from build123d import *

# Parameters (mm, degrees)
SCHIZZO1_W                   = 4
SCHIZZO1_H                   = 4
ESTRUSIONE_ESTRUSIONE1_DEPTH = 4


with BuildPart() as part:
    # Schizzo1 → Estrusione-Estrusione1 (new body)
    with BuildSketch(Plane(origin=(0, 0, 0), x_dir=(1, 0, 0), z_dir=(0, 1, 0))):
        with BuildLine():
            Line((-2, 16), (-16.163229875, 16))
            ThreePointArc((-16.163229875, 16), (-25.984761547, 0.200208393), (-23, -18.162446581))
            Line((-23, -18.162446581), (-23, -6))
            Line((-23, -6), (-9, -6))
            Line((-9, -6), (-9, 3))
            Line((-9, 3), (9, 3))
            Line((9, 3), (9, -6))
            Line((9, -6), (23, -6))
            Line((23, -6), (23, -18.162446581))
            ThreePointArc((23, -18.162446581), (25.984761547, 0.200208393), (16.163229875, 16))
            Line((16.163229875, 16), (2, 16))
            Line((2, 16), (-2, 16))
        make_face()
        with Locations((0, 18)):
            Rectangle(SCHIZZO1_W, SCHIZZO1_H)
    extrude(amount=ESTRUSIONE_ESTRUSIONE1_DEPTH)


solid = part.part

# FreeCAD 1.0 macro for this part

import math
import FreeCAD as App
import Part
import Sketcher

V = App.Vector

doc = App.newDocument("Part")
body = doc.addObject("PartDesign::Body", "Body")

sketch1 = body.newObject("Sketcher::SketchObject", "Sketch")
sketch1.AttachmentSupport = (doc.getObject("XZ_Plane"), [""])
sketch1.MapMode = "FlatFace"
sketch1.addGeometry([
    Part.ArcOfCircle(Part.Circle(V(0, 5, 0), V(0, 0, 1), 26.5), math.radians(150), math.radians(232)),
    Part.LineSegment(V(-23, 18.2, 0), V(-23, 6, 0)),
    Part.LineSegment(V(-23, 6, 0), V(-9, 6, 0)),
    Part.LineSegment(V(-9, 6, 0), V(-9, -3, 0)),
    Part.LineSegment(V(-9, -3, 0), V(9, -3, 0)),
    Part.LineSegment(V(9, -3, 0), V(9, 6, 0)),
    Part.LineSegment(V(9, 6, 0), V(23, 6, 0)),
    Part.LineSegment(V(23, 6, 0), V(23, 18.2, 0)),
    Part.ArcOfCircle(Part.Circle(V(0, 5, 0), V(0, 0, 1), 26.5), math.radians(-52), math.radians(30)),
    Part.LineSegment(V(16.2, -16, 0), V(2, -16, 0)),
    Part.LineSegment(V(2, -16, 0), V(2, -20, 0)),
    Part.LineSegment(V(2, -20, 0), V(-2, -20, 0)),
    Part.LineSegment(V(-2, -20, 0), V(-2, -16, 0)),
    Part.LineSegment(V(-2, -16, 0), V(-16.2, -16, 0)),
], False)
sketch1.addConstraint([
    Sketcher.Constraint("Coincident", 0, 1, 1, 1),
    Sketcher.Constraint("Coincident", 1, 2, 2, 1),
    Sketcher.Constraint("Coincident", 2, 2, 3, 1),
    Sketcher.Constraint("Coincident", 3, 2, 4, 1),
    Sketcher.Constraint("Coincident", 4, 2, 5, 1),
    Sketcher.Constraint("Coincident", 5, 2, 6, 1),
    Sketcher.Constraint("Coincident", 6, 2, 7, 1),
    Sketcher.Constraint("Coincident", 7, 2, 8, 2),
    Sketcher.Constraint("Coincident", 8, 1, 9, 1),
    Sketcher.Constraint("Coincident", 9, 2, 10, 1),
    Sketcher.Constraint("Coincident", 10, 2, 11, 1),
    Sketcher.Constraint("Coincident", 11, 2, 12, 1),
    Sketcher.Constraint("Coincident", 12, 2, 13, 1),
    Sketcher.Constraint("Coincident", 13, 2, 0, 2),
    Sketcher.Constraint("Vertical", 1),
    Sketcher.Constraint("Horizontal", 2),
    Sketcher.Constraint("Vertical", 3),
    Sketcher.Constraint("Horizontal", 4),
    Sketcher.Constraint("Vertical", 5),
    Sketcher.Constraint("Horizontal", 6),
    Sketcher.Constraint("Vertical", 7),
    Sketcher.Constraint("Horizontal", 9),
    Sketcher.Constraint("Vertical", 10),
    Sketcher.Constraint("Horizontal", 11),
    Sketcher.Constraint("Vertical", 12),
    Sketcher.Constraint("Horizontal", 13),
    Sketcher.Constraint("Coincident", 8, 3, 0, 3),
    Sketcher.Constraint("Equal", 0, 8),
    Sketcher.Constraint("Symmetric", 2, 2, 5, 2, -2),
    Sketcher.Constraint("Symmetric", 0, 1, 7, 2, -2),
    Sketcher.Constraint("Symmetric", 9, 2, 12, 2, -2),
    Sketcher.Constraint("Equal", 11, 10),
    Sketcher.Constraint("Radius", 0, 26.5),
    Sketcher.Constraint("DistanceX", 2, 1, 2, 2, 14.0),
    Sketcher.Constraint("DistanceX", 4, 1, 4, 2, 18.0),
    Sketcher.Constraint("DistanceX", 11, 2, 11, 1, 4.0),
    Sketcher.Constraint("DistanceY", 3, 2, 3, 1, 9.0),
    Sketcher.Constraint("DistanceY", -1, 1, 0, 3, 5.0),
    Sketcher.Constraint("DistanceY", -1, 1, 1, 2, 6.0),
    Sketcher.Constraint("DistanceY", 8, 1, -1, 1, 16.0),
])
pad1 = body.newObject("PartDesign::Pad", "Pad")
pad1.Profile = sketch1
pad1.Length = 4
pad1.Reversed = True

doc.recompute()
